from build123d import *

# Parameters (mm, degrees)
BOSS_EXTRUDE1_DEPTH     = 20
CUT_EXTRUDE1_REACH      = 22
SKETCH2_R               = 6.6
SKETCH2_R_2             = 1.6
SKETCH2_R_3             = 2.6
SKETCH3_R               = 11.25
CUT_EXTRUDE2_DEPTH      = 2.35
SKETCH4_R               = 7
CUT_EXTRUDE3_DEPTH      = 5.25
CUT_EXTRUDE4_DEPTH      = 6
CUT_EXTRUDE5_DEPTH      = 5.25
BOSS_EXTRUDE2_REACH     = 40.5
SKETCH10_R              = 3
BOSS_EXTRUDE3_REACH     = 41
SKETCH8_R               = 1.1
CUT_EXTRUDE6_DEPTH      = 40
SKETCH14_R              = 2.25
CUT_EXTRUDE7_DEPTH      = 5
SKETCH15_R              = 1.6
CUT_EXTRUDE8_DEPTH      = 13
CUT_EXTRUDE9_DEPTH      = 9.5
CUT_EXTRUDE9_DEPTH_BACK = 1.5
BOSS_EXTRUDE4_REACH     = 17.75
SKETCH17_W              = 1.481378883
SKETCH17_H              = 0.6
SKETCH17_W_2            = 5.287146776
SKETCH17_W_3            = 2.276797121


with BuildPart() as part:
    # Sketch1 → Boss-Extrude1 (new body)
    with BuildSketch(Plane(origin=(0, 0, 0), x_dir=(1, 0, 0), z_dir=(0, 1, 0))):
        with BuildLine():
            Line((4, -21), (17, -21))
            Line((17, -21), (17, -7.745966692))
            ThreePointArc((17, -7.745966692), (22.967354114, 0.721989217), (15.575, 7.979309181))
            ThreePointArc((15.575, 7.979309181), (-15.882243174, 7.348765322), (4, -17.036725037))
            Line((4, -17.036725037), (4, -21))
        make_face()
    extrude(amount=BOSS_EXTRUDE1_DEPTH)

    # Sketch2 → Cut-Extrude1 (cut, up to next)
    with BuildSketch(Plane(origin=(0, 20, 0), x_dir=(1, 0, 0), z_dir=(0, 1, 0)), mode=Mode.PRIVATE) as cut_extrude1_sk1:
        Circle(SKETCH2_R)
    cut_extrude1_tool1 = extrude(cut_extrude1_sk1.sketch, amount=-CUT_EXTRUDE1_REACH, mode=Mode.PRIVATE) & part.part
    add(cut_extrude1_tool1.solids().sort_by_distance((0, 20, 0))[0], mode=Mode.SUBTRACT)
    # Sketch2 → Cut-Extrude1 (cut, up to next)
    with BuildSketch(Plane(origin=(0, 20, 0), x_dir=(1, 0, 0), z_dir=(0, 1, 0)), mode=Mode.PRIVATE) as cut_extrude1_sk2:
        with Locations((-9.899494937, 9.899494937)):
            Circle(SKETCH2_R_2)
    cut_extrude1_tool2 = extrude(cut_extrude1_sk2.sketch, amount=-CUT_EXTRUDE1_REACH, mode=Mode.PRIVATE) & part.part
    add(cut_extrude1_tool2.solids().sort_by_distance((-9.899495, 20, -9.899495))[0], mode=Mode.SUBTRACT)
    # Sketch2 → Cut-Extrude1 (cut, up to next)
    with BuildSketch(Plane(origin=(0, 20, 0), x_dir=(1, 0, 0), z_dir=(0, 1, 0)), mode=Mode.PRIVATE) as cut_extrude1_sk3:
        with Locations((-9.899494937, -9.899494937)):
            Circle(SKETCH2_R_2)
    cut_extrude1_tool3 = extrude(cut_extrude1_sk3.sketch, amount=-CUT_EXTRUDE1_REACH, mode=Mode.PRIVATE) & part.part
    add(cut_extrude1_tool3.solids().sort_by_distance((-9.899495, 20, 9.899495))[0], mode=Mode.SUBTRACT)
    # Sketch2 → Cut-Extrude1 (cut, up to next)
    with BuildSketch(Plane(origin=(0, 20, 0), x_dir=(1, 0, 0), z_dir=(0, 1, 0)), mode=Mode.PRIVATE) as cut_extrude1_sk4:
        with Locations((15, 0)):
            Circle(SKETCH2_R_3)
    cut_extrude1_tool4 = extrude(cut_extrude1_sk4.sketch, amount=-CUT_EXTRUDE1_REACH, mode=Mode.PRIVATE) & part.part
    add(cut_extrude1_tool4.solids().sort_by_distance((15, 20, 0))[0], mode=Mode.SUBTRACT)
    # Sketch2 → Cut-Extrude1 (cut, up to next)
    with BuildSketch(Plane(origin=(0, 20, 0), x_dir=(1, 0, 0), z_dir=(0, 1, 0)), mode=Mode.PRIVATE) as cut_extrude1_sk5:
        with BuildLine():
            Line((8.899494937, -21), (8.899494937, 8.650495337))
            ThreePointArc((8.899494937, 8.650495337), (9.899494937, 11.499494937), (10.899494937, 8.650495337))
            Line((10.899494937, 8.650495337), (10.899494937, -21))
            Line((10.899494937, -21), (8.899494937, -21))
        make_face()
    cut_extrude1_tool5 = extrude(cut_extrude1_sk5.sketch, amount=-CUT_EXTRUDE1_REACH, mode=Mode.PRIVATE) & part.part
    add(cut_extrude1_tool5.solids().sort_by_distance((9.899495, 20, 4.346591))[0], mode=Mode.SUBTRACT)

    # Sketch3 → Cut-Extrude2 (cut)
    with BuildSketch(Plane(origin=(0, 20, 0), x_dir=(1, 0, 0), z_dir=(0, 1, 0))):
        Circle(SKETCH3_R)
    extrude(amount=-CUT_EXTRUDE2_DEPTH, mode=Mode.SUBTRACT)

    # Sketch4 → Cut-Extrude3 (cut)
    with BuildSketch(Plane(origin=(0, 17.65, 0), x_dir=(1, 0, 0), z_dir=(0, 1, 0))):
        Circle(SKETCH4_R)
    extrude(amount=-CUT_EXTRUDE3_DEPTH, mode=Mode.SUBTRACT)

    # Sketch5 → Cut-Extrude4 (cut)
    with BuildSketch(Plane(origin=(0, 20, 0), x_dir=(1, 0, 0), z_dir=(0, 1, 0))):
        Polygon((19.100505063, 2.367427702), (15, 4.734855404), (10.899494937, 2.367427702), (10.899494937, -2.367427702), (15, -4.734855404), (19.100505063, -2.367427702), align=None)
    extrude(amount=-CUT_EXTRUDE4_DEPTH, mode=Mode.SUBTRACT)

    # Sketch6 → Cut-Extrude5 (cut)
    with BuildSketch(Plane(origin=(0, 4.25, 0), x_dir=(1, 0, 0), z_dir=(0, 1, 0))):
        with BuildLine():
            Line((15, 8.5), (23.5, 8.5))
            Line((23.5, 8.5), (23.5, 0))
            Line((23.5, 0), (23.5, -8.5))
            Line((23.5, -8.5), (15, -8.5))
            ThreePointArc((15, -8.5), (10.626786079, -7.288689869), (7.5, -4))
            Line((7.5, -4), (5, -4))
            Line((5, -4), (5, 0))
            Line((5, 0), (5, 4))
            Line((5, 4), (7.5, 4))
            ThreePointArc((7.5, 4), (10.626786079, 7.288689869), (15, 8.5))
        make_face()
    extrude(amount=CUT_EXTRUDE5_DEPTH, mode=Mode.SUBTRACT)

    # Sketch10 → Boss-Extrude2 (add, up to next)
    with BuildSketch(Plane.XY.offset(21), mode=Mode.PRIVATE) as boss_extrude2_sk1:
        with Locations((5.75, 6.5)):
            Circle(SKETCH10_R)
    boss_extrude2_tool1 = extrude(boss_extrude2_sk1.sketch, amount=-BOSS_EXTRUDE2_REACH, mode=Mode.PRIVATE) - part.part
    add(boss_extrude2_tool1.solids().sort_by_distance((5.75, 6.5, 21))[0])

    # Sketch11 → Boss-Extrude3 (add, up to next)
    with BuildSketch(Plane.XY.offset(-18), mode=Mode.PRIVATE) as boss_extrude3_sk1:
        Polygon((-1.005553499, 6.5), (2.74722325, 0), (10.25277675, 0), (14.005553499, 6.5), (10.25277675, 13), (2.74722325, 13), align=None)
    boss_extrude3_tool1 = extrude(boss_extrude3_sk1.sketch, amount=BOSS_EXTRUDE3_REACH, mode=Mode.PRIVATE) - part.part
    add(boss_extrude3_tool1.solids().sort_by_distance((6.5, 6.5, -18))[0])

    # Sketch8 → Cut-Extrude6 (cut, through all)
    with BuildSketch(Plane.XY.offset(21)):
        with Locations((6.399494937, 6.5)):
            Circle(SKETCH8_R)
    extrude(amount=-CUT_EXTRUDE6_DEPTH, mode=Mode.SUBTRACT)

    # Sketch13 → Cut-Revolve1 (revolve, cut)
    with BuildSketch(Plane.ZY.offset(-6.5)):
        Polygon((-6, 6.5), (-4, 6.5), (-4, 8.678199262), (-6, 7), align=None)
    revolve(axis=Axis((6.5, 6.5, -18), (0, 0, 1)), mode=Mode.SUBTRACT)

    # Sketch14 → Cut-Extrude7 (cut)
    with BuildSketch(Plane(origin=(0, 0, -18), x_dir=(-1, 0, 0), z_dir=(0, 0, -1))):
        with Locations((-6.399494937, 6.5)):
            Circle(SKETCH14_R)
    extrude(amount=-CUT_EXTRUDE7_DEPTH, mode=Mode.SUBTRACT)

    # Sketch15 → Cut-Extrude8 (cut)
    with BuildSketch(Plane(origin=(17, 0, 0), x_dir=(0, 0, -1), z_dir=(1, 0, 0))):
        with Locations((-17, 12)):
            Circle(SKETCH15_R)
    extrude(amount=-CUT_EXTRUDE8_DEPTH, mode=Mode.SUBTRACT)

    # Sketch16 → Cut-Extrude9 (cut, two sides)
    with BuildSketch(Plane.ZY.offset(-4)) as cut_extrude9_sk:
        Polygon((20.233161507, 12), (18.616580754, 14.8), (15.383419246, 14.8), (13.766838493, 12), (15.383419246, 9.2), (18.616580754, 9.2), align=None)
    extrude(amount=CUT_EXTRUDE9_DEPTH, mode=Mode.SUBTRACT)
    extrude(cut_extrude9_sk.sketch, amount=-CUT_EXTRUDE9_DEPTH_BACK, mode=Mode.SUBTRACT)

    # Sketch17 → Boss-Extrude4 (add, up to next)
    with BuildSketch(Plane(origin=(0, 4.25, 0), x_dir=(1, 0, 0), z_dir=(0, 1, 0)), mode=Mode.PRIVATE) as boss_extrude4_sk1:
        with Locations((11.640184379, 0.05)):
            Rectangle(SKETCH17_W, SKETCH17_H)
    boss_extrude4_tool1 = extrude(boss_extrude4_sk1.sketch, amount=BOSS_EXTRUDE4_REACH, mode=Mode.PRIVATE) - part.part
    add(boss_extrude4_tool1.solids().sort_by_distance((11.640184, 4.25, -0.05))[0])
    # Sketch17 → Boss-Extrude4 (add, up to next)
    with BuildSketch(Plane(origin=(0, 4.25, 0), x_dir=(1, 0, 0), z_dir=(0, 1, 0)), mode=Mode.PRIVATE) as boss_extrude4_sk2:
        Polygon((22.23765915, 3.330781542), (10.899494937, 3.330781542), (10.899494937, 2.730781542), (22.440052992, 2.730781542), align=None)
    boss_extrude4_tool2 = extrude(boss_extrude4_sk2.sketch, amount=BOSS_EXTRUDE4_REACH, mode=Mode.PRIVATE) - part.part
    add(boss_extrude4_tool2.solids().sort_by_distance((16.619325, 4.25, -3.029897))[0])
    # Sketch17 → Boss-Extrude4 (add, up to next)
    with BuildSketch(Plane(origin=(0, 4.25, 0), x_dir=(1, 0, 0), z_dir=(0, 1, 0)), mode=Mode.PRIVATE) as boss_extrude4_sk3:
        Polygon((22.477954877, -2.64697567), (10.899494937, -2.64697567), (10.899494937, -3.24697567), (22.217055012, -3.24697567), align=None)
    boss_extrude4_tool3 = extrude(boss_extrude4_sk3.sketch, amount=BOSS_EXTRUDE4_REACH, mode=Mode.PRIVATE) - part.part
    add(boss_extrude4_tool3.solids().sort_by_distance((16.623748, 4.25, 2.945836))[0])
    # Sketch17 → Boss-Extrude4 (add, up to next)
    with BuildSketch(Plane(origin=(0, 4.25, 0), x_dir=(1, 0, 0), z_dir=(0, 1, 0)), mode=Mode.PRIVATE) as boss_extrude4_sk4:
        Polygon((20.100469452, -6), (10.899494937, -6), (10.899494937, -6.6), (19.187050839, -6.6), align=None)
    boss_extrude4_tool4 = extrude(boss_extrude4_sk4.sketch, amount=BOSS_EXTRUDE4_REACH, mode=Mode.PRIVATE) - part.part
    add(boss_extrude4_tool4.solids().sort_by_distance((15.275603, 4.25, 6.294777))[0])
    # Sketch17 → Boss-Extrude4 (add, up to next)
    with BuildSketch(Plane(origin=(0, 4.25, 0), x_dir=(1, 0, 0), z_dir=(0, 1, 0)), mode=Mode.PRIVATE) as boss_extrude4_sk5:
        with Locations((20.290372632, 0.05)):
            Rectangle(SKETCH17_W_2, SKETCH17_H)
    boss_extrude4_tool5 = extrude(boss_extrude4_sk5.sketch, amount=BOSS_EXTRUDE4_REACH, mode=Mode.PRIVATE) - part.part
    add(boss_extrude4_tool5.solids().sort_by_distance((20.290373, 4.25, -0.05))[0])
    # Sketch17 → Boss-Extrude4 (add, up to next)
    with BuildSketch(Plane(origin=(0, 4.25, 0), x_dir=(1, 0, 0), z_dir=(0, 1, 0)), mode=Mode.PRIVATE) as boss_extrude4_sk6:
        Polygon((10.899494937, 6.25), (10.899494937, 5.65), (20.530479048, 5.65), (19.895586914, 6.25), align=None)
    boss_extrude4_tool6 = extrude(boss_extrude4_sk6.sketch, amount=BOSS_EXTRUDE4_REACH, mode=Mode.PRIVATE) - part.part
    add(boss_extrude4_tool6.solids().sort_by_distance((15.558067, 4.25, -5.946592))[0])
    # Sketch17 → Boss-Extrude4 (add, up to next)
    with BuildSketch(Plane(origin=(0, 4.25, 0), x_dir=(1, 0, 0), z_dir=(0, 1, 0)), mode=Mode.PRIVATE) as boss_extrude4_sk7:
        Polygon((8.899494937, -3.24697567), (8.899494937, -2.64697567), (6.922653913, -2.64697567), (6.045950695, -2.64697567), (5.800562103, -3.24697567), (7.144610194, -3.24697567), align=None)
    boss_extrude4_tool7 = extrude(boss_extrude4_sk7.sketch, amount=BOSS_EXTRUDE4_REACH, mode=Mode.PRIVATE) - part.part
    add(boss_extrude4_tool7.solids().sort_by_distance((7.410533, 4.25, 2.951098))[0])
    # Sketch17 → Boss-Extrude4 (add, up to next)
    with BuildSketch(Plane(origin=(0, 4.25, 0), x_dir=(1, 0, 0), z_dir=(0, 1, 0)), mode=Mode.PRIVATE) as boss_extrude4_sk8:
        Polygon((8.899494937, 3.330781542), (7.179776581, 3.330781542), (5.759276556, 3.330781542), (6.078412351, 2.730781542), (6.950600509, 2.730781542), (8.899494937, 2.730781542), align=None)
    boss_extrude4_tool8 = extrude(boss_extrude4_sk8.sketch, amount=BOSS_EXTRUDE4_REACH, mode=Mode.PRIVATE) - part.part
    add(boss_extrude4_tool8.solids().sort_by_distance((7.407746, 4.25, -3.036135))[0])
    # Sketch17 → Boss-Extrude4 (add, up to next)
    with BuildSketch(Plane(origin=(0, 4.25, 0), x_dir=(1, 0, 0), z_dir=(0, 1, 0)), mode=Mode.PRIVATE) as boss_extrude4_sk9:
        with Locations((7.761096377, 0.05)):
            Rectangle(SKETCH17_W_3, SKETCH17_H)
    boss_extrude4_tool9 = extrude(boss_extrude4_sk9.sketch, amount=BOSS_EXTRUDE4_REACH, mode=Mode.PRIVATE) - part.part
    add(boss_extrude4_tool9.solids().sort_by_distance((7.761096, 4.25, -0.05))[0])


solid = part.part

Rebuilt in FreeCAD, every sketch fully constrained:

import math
import FreeCAD as App
import Part
import Sketcher
Q = App.Units.Quantity

doc = App.newDocument("Part")
params = doc.addObject("Spreadsheet::Sheet", "Params")
for row, (alias, value) in enumerate([
    ("sketch1_radius", "8 mm"),
    ("sketch1_radius2", "17.5 mm"),
    ("sketch1_width", "13 mm"),
    ("pad1_length", "20 mm"),
    ("sketch2_diameter", "13.2 mm"),
    ("sketch3_diameter", "3.2 mm"),
    ("sketch4_diameter", "3.2 mm"),
    ("sketch5_diameter", "5.2 mm"),
    ("sketch6_radius", "1.6 mm"),
    ("sketch6_width", "2 mm"),
    ("sketch7_diameter", "22.5 mm"),
    ("pocket6_length", "2.35 mm"),
    ("sketch8_diameter", "14 mm"),
    ("pocket7_length", "5.25 mm"),
    ("pocket8_length", "6 mm"),
    ("sketch10_radius", "8.5 mm"),
    ("sketch10_height", "8 mm"),
    ("sketch10_width", "8.5 mm"),
    ("sketch10_width2", "2.5 mm"),
    ("pocket9_length", "5.25 mm"),
    ("sketch11_diameter", "6 mm"),
    ("pad2_length", "3.963275 mm"),
    ("sketch13_diameter", "2.2 mm"),
    ("sketch14_height", "2 mm"),
    ("sketch14_width", "0.5 mm"),
    ("groove_angle", "360 deg"),
    ("sketch15_diameter", "4.5 mm"),
    ("pocket11_length", "5 mm"),
    ("sketch16_diameter", "3.2 mm"),
    ("pocket12_length", "13 mm"),
    ("pocket13_length", "9.5 mm"),
    ("pocket13_length2", "1.5 mm"),
    ("sketch18_height", "0.6 mm"),
    ("sketch19_height", "0.6 mm"),
    ("sketch20_height", "0.6 mm"),
    ("sketch21_height", "0.6 mm"),
    ("sketch22_height", "0.6 mm"),
    ("sketch23_height", "0.6 mm"),
    ("sketch24_height", "0.6 mm"),
    ("sketch25_height", "0.6 mm"),
    ("sketch26_height", "0.6 mm"),
], start=1):
    params.set(f"A{row}", alias)
    params.set(f"B{row}", "=" + value)
    params.setAlias(f"B{row}", alias)

body = doc.addObject("PartDesign::Body", "Body")

# Sketch on XZ plane
sketch1 = body.newObject("Sketcher::SketchObject", "Sketch")
sketch1.AttachmentSupport = (doc.getObject("XZ_Plane"), [""])
sketch1.MapMode = "FlatFace"
sketch1.addGeometry([
    Part.LineSegment(App.Vector(4, 21, 0), App.Vector(17, 21, 0)),  # 0
    Part.LineSegment(App.Vector(17, 21, 0), App.Vector(17, 7.745967, 0)),  # 1
    Part.ArcOfCircle(Part.Circle(App.Vector(15, 0, 0), App.Vector(0, 0, 1), 8), math.radians(-85.878312), math.radians(75.522488)),  # 2
    Part.ArcOfCircle(Part.Circle(App.Vector(0, 0, 0), App.Vector(0, 0, 1), 17.5), math.radians(76.78702), math.radians(332.873247)),  # 3
    Part.LineSegment(App.Vector(4, 17.036725, 0), App.Vector(4, 21, 0)),  # 4
], False)
sketch1.addConstraint([
    Sketcher.Constraint("Coincident", 0, 2, 1, 1),
    Sketcher.Constraint("Coincident", 1, 2, 2, 2),
    Sketcher.Constraint("Coincident", 2, 1, 3, 2),
    Sketcher.Constraint("Coincident", 3, 1, 4, 1),
    Sketcher.Constraint("Coincident", 4, 2, 0, 1),
    Sketcher.Constraint("Horizontal", 0),
    Sketcher.Constraint("Vertical", 1),
    Sketcher.Constraint("Vertical", 4),
    Sketcher.Constraint("Coincident", 3, 3, -1, 1),
    Sketcher.Constraint("PointOnObject", 2, 3, -1),
    Sketcher.Constraint("Radius", 2, Q("8 mm")),
    Sketcher.Constraint("Radius", 3, Q("17.5 mm")),
    Sketcher.Constraint("DistanceX", 0, 1, 0, 2, Q("13 mm")),
    Sketcher.Constraint("DistanceX", -1, 1, 2, 3, Q("15 mm")),
    Sketcher.Constraint("DistanceX", -1, 1, 0, 2, Q("17 mm")),
    Sketcher.Constraint("DistanceY", -1, 1, 0, 2, Q("21 mm")),
])
sketch1.setExpression("Constraints[10]", "Params.sketch1_radius")
sketch1.setExpression("Constraints[11]", "Params.sketch1_radius2")
sketch1.setExpression("Constraints[12]", "Params.sketch1_width")
pad1 = body.newObject("PartDesign::Pad", "Pad")
pad1.Profile = sketch1
pad1.setExpression("Length", "Params.pad1_length")
pad1.Reversed = True

# Sketch on XZ plane
sketch2 = body.newObject("Sketcher::SketchObject", "Sketch001")
sketch2.AttachmentSupport = (doc.getObject("XZ_Plane"), [""])
sketch2.MapMode = "FlatFace"
sketch2.AttachmentOffset = App.Placement(App.Vector(0, 0, -20), App.Rotation())
sketch2.addGeometry(Part.Circle(App.Vector(0, 0, 0), App.Vector(0, 0, 1), 6.6), False)
sketch2.addConstraint([
    Sketcher.Constraint("Coincident", 0, 3, -1, 1),
    Sketcher.Constraint("Diameter", 0, Q("13.2 mm")),
])
sketch2.setExpression("Constraints[1]", "Params.sketch2_diameter")
pocket1 = body.newObject("PartDesign::Pocket", "Pocket")
pocket1.Profile = sketch2
pocket1.Type = "UpToFirst"
pocket1.Reversed = True

# Sketch on XZ plane
sketch3 = body.newObject("Sketcher::SketchObject", "Sketch002")
sketch3.AttachmentSupport = (doc.getObject("XZ_Plane"), [""])
sketch3.MapMode = "FlatFace"
sketch3.AttachmentOffset = App.Placement(App.Vector(0, 0, -20), App.Rotation())
sketch3.addGeometry(Part.Circle(App.Vector(-9.899495, -9.899495, 0), App.Vector(0, 0, 1), 1.6), False)
sketch3.addConstraint([
    Sketcher.Constraint("Diameter", 0, Q("3.2 mm")),
    Sketcher.Constraint("DistanceX", 0, 3, -1, 1, Q("9.899495 mm")),
    Sketcher.Constraint("DistanceY", 0, 3, -1, 1, Q("9.899495 mm")),
])
sketch3.setExpression("Constraints[0]", "Params.sketch3_diameter")
pocket2 = body.newObject("PartDesign::Pocket", "Pocket001")
pocket2.Profile = sketch3
pocket2.Type = "UpToFirst"
pocket2.Reversed = True

# Sketch on XZ plane
sketch4 = body.newObject("Sketcher::SketchObject", "Sketch003")
sketch4.AttachmentSupport = (doc.getObject("XZ_Plane"), [""])
sketch4.MapMode = "FlatFace"
sketch4.AttachmentOffset = App.Placement(App.Vector(0, 0, -20), App.Rotation())
sketch4.addGeometry(Part.Circle(App.Vector(-9.899495, 9.899495, 0), App.Vector(0, 0, 1), 1.6), False)
sketch4.addConstraint([
    Sketcher.Constraint("Diameter", 0, Q("3.2 mm")),
    Sketcher.Constraint("DistanceX", 0, 3, -1, 1, Q("9.899495 mm")),
    Sketcher.Constraint("DistanceY", -1, 1, 0, 3, Q("9.899495 mm")),
])
sketch4.setExpression("Constraints[0]", "Params.sketch4_diameter")
pocket3 = body.newObject("PartDesign::Pocket", "Pocket002")
pocket3.Profile = sketch4
pocket3.Type = "UpToFirst"
pocket3.Reversed = True

# Sketch on XZ plane
sketch5 = body.newObject("Sketcher::SketchObject", "Sketch004")
sketch5.AttachmentSupport = (doc.getObject("XZ_Plane"), [""])
sketch5.MapMode = "FlatFace"
sketch5.AttachmentOffset = App.Placement(App.Vector(0, 0, -20), App.Rotation())
sketch5.addGeometry(Part.Circle(App.Vector(15, 0, 0), App.Vector(0, 0, 1), 2.6), False)
sketch5.addConstraint([
    Sketcher.Constraint("PointOnObject", 0, 3, -1),
    Sketcher.Constraint("Diameter", 0, Q("5.2 mm")),
    Sketcher.Constraint("DistanceX", -1, 1, 0, 3, Q("15 mm")),
])
sketch5.setExpression("Constraints[1]", "Params.sketch5_diameter")
pocket4 = body.newObject("PartDesign::Pocket", "Pocket003")
pocket4.Profile = sketch5
pocket4.Type = "UpToFirst"
pocket4.Reversed = True

# Sketch on XZ plane
sketch6 = body.newObject("Sketcher::SketchObject", "Sketch005")
sketch6.AttachmentSupport = (doc.getObject("XZ_Plane"), [""])
sketch6.MapMode = "FlatFace"
sketch6.AttachmentOffset = App.Placement(App.Vector(0, 0, -20), App.Rotation())
sketch6.addGeometry([
    Part.LineSegment(App.Vector(8.899495, -8.650495, 0), App.Vector(8.899495, 21, 0)),
    Part.LineSegment(App.Vector(8.899495, 21, 0), App.Vector(10.899495, 21, 0)),
    Part.LineSegment(App.Vector(10.899495, 21, 0), App.Vector(10.899495, -8.650495, 0)),
    Part.ArcOfCircle(Part.Circle(App.Vector(9.899495, -9.899495, 0), App.Vector(0, 0, 1), 1.6), math.radians(128.682187), math.radians(411.317813)),
], False)
sketch6.addConstraint([
    Sketcher.Constraint("Coincident", 0, 2, 1, 1),
    Sketcher.Constraint("Coincident", 1, 2, 2, 1),
    Sketcher.Constraint("Coincident", 2, 2, 3, 2),
    Sketcher.Constraint("Coincident", 3, 1, 0, 1),
    Sketcher.Constraint("Vertical", 0),
    Sketcher.Constraint("Horizontal", 1),
    Sketcher.Constraint("Vertical", 2),
    Sketcher.Constraint("Horizontal", 2, 2, 3, 1),
    Sketcher.Constraint("Radius", 3, Q("1.6 mm")),
    Sketcher.Constraint("DistanceX", 1, 1, 1, 2, Q("2 mm")),
    Sketcher.Constraint("DistanceY", -1, 1, 0, 2, Q("21 mm")),
    Sketcher.Constraint("DistanceY", 0, 1, 0, 2, Q("29.650495 mm")),
    Sketcher.Constraint("DistanceX", -1, 1, 3, 3, Q("9.899495 mm")),
])
sketch6.setExpression("Constraints[8]", "Params.sketch6_radius")
sketch6.setExpression("Constraints[9]", "Params.sketch6_width")
pocket5 = body.newObject("PartDesign::Pocket", "Pocket004")
pocket5.Profile = sketch6
pocket5.Type = "UpToFirst"
pocket5.Reversed = True

# Sketch on XZ plane
sketch7 = body.newObject("Sketcher::SketchObject", "Sketch006")
sketch7.AttachmentSupport = (doc.getObject("XZ_Plane"), [""])
sketch7.MapMode = "FlatFace"
sketch7.AttachmentOffset = App.Placement(App.Vector(0, 0, -20), App.Rotation())
sketch7.addGeometry(Part.Circle(App.Vector(0, 0, 0), App.Vector(0, 0, 1), 11.25), False)
sketch7.addConstraint([
    Sketcher.Constraint("Coincident", 0, 3, -1, 1),
    Sketcher.Constraint("Diameter", 0, Q("22.5 mm")),
])
sketch7.setExpression("Constraints[1]", "Params.sketch7_diameter")
pocket6 = body.newObject("PartDesign::Pocket", "Pocket005")
pocket6.Profile = sketch7
pocket6.setExpression("Length", "Params.pocket6_length")
pocket6.Reversed = True

# Sketch on XZ plane
sketch8 = body.newObject("Sketcher::SketchObject", "Sketch007")
sketch8.AttachmentSupport = (doc.getObject("XZ_Plane"), [""])
sketch8.MapMode = "FlatFace"
sketch8.AttachmentOffset = App.Placement(App.Vector(0, 0, -17.65), App.Rotation())
sketch8.addGeometry(Part.Circle(App.Vector(0, 0, 0), App.Vector(0, 0, 1), 7), False)
sketch8.addConstraint([
    Sketcher.Constraint("Coincident", 0, 3, -1, 1),
    Sketcher.Constraint("Diameter", 0, Q("14 mm")),
])
sketch8.setExpression("Constraints[1]", "Params.sketch8_diameter")
pocket7 = body.newObject("PartDesign::Pocket", "Pocket006")
pocket7.Profile = sketch8
pocket7.setExpression("Length", "Params.pocket7_length")
pocket7.Reversed = True

# Sketch on XZ plane
sketch9 = body.newObject("Sketcher::SketchObject", "Sketch008")
sketch9.AttachmentSupport = (doc.getObject("XZ_Plane"), [""])
sketch9.MapMode = "FlatFace"
sketch9.AttachmentOffset = App.Placement(App.Vector(0, 0, -20), App.Rotation())
sketch9.addGeometry([
    Part.LineSegment(App.Vector(19.100505, -2.367428, 0), App.Vector(15, -4.734855, 0)),  # 0
    Part.LineSegment(App.Vector(15, -4.734855, 0), App.Vector(10.899495, -2.367428, 0)),  # 1
    Part.LineSegment(App.Vector(10.899495, -2.367428, 0), App.Vector(10.899495, 2.367428, 0)),  # 2
    Part.LineSegment(App.Vector(10.899495, 2.367428, 0), App.Vector(15, 4.734855, 0)),  # 3
    Part.LineSegment(App.Vector(15, 4.734855, 0), App.Vector(19.100505, 2.367428, 0)),  # 4
    Part.LineSegment(App.Vector(19.100505, 2.367428, 0), App.Vector(19.100505, -2.367428, 0)),  # 5
], False)
sketch9.addConstraint([
    Sketcher.Constraint("Coincident", 0, 2, 1, 1),
    Sketcher.Constraint("Coincident", 1, 2, 2, 1),
    Sketcher.Constraint("Coincident", 2, 2, 3, 1),
    Sketcher.Constraint("Coincident", 3, 2, 4, 1),
    Sketcher.Constraint("Coincident", 4, 2, 5, 1),
    Sketcher.Constraint("Coincident", 5, 2, 0, 1),
    Sketcher.Constraint("Vertical", 2),
    Sketcher.Constraint("Vertical", 5),
    Sketcher.Constraint("Symmetric", 0, 2, 3, 2, -1),
    Sketcher.Constraint("Parallel", 0, 3),
    Sketcher.Constraint("Parallel", 1, 4),
    Sketcher.Constraint("Horizontal", 2, 2, 4, 2),
    Sketcher.Constraint("Horizontal", 1, 2, 5, 2),
    Sketcher.Constraint("Angle", 0, Q("-150 deg")),
    Sketcher.Constraint("DistanceX", -1, 1, 0, 2, Q("15 mm")),
    Sketcher.Constraint("DistanceY", 2, 1, 2, 2, Q("4.734855 mm")),
    Sketcher.Constraint("DistanceY", 0, 2, 3, 2, Q("9.469711 mm")),
])
pocket8 = body.newObject("PartDesign::Pocket", "Pocket007")
pocket8.Profile = sketch9
pocket8.setExpression("Length", "Params.pocket8_length")
pocket8.Reversed = True

# Sketch on XZ plane
sketch10 = body.newObject("Sketcher::SketchObject", "Sketch009")
sketch10.AttachmentSupport = (doc.getObject("XZ_Plane"), [""])
sketch10.MapMode = "FlatFace"
sketch10.AttachmentOffset = App.Placement(App.Vector(0, 0, -4.25), App.Rotation())
sketch10.addGeometry([
    Part.LineSegment(App.Vector(23.5, -8.5, 0), App.Vector(15, -8.5, 0)),  # 0
    Part.ArcOfCircle(Part.Circle(App.Vector(15, 0, 0), App.Vector(0, 0, 1), 8.5), math.radians(-151.927513), math.radians(-90)),  # 1
    Part.LineSegment(App.Vector(7.5, -4, 0), App.Vector(5, -4, 0)),  # 2
    Part.LineSegment(App.Vector(5, -4, 0), App.Vector(5, 4, 0)),  # 3
    Part.LineSegment(App.Vector(5, 4, 0), App.Vector(7.5, 4, 0)),  # 4
    Part.ArcOfCircle(Part.Circle(App.Vector(15, 0, 0), App.Vector(0, 0, 1), 8.5), math.radians(90), math.radians(151.927513)),  # 5
    Part.LineSegment(App.Vector(15, 8.5, 0), App.Vector(23.5, 8.5, 0)),  # 6
    Part.LineSegment(App.Vector(23.5, 8.5, 0), App.Vector(23.5, -8.5, 0)),  # 7
], False)
sketch10.addConstraint([
    Sketcher.Constraint("Tangent", 0, 2, 1, 2),
    Sketcher.Constraint("Coincident", 1, 1, 2, 1),
    Sketcher.Constraint("Coincident", 2, 2, 3, 1),
    Sketcher.Constraint("Coincident", 3, 2, 4, 1),
    Sketcher.Constraint("Coincident", 4, 2, 5, 2),
    Sketcher.Constraint("Tangent", 5, 1, 6, 1),
    Sketcher.Constraint("Coincident", 6, 2, 7, 1),
    Sketcher.Constraint("Coincident", 7, 2, 0, 1),
    Sketcher.Constraint("Horizontal", 0),
    Sketcher.Constraint("Horizontal", 2),
    Sketcher.Constraint("Vertical", 3),
    Sketcher.Constraint("Horizontal", 4),
    Sketcher.Constraint("Horizontal", 6),
    Sketcher.Constraint("Vertical", 7),
    Sketcher.Constraint("Coincident", 5, 3, 1, 3),
    Sketcher.Constraint("Equal", 1, 5),
    Sketcher.Constraint("Symmetric", 1, 1, 4, 2, -1),
    Sketcher.Constraint("Radius", 1, Q("8.5 mm")),
    Sketcher.Constraint("DistanceY", 3, 1, 3, 2, Q("8 mm")),
    Sketcher.Constraint("DistanceX", 0, 2, 0, 1, Q("8.5 mm")),
    Sketcher.Constraint("DistanceX", 2, 2, 2, 1, Q("2.5 mm")),
    Sketcher.Constraint("DistanceX", -1, 1, 1, 3, Q("15 mm")),
])
sketch10.setExpression("Constraints[17]", "Params.sketch10_radius")
sketch10.setExpression("Constraints[18]", "Params.sketch10_height")
sketch10.setExpression("Constraints[19]", "Params.sketch10_width")
sketch10.setExpression("Constraints[20]", "Params.sketch10_width2")
pocket9 = body.newObject("PartDesign::Pocket", "Pocket008")
pocket9.Profile = sketch10
pocket9.setExpression("Length", "Params.pocket9_length")

# Sketch on XY plane
sketch11 = body.newObject("Sketcher::SketchObject", "Sketch010")
sketch11.AttachmentSupport = (doc.getObject("XY_Plane"), [""])
sketch11.MapMode = "FlatFace"
sketch11.AttachmentOffset = App.Placement(App.Vector(0, 0, 21), App.Rotation())
sketch11.addGeometry(Part.Circle(App.Vector(5.75, 6.5, 0), App.Vector(0, 0, 1), 3), False)
sketch11.addConstraint([
    Sketcher.Constraint("Diameter", 0, Q("6 mm")),
    Sketcher.Constraint("DistanceY", -1, 1, 0, 3, Q("6.5 mm")),
    Sketcher.Constraint("DistanceX", -1, 1, 0, 3, Q("5.75 mm")),
])
sketch11.setExpression("Constraints[0]", "Params.sketch11_diameter")
pad2 = body.newObject("PartDesign::Pad", "Pad001")
pad2.Profile = sketch11
pad2.setExpression("Length", "Params.pad2_length")
pad2.Reversed = True

# Sketch on XY plane
sketch12 = body.newObject("Sketcher::SketchObject", "Sketch011")
sketch12.AttachmentSupport = (doc.getObject("XY_Plane"), [""])
sketch12.MapMode = "FlatFace"
sketch12.AttachmentOffset = App.Placement(App.Vector(0, 0, -18), App.Rotation())
sketch12.addGeometry([
    Part.LineSegment(App.Vector(-1.005553, 6.5, 0), App.Vector(2.747223, 0, 0)),  # 0
    Part.LineSegment(App.Vector(2.747223, 0, 0), App.Vector(10.252777, 0, 0)),  # 1
    Part.LineSegment(App.Vector(10.252777, 0, 0), App.Vector(14.005553, 6.5, 0)),  # 2
    Part.LineSegment(App.Vector(14.005553, 6.5, 0), App.Vector(10.252777, 13, 0)),  # 3
    Part.LineSegment(App.Vector(10.252777, 13, 0), App.Vector(2.747223, 13, 0)),  # 4
    Part.LineSegment(App.Vector(2.747223, 13, 0), App.Vector(-1.005553, 6.5, 0)),  # 5
], False)
sketch12.addConstraint([
    Sketcher.Constraint("Coincident", 0, 2, 1, 1),
    Sketcher.Constraint("Coincident", 1, 2, 2, 1),
    Sketcher.Constraint("Coincident", 2, 2, 3, 1),
    Sketcher.Constraint("Coincident", 3, 2, 4, 1),
    Sketcher.Constraint("Coincident", 4, 2, 5, 1),
    Sketcher.Constraint("Coincident", 5, 2, 0, 1),
    Sketcher.Constraint("Horizontal", 1),
    Sketcher.Constraint("Horizontal", 4),
    Sketcher.Constraint("PointOnObject", 0, 2, -1),
    Sketcher.Constraint("Parallel", 0, 3),
    Sketcher.Constraint("Parallel", 2, 5),
    Sketcher.Constraint("Horizontal", 2, 2, 5, 2),
    Sketcher.Constraint("Vertical", 1, 2, 3, 2),
    Sketcher.Constraint("Vertical", 0, 2, 4, 2),
    Sketcher.Constraint("Angle", 0, Q("-60 deg")),
    Sketcher.Constraint("DistanceY", -1, 1, 3, 2, Q("13 mm")),
    Sketcher.Constraint("DistanceX", 1, 1, 1, 2, Q("7.505554 mm")),
    Sketcher.Constraint("DistanceX", -1, 1, 0, 2, Q("2.747223 mm")),
])
pad3 = body.newObject("PartDesign::Pad", "Pad002")
pad3.Profile = sketch12
pad3.Type = "UpToFirst"

# Sketch on XY plane
sketch13 = body.newObject("Sketcher::SketchObject", "Sketch012")
sketch13.AttachmentSupport = (doc.getObject("XY_Plane"), [""])
sketch13.MapMode = "FlatFace"
sketch13.AttachmentOffset = App.Placement(App.Vector(0, 0, 21), App.Rotation())
sketch13.addGeometry(Part.Circle(App.Vector(6.399495, 6.5, 0), App.Vector(0, 0, 1), 1.1), False)
sketch13.addConstraint([
    Sketcher.Constraint("Diameter", 0, Q("2.2 mm")),
    Sketcher.Constraint("DistanceY", -1, 1, 0, 3, Q("6.5 mm")),
    Sketcher.Constraint("DistanceX", -1, 1, 0, 3, Q("6.399495 mm")),
])
sketch13.setExpression("Constraints[0]", "Params.sketch13_diameter")
pocket10 = body.newObject("PartDesign::Pocket", "Pocket009")
pocket10.Profile = sketch13
pocket10.Type = "ThroughAll"

# Sketch on YZ plane
sketch14 = body.newObject("Sketcher::SketchObject", "Sketch013")
sketch14.AttachmentSupport = (doc.getObject("YZ_Plane"), [""])
sketch14.MapMode = "FlatFace"
sketch14.AttachmentOffset = App.Placement(App.Vector(0, 0, 6.5), App.Rotation())
sketch14.addGeometry([
    Part.LineSegment(App.Vector(6.5, -6, 0), App.Vector(6.5, -4, 0)),
    Part.LineSegment(App.Vector(6.5, -4, 0), App.Vector(8.678199, -4, 0)),
    Part.LineSegment(App.Vector(8.678199, -4, 0), App.Vector(7, -6, 0)),
    Part.LineSegment(App.Vector(7, -6, 0), App.Vector(6.5, -6, 0)),
], False)
sketch14.addGeometry(Part.LineSegment(App.Vector(6.5, -6, 0), App.Vector(6.5, -4, 0)), True)  # axis
sketch14.addConstraint([
    Sketcher.Constraint("Coincident", 0, 2, 1, 1),
    Sketcher.Constraint("Coincident", 1, 2, 2, 1),
    Sketcher.Constraint("Coincident", 2, 2, 3, 1),
    Sketcher.Constraint("Coincident", 3, 2, 0, 1),
    Sketcher.Constraint("Vertical", 0),
    Sketcher.Constraint("Horizontal", 1),
    Sketcher.Constraint("Horizontal", 3),
    Sketcher.Constraint("Vertical", 4),
    Sketcher.Constraint("Coincident", 4, 1, 3, 2),
    Sketcher.Constraint("Horizontal", 1, 2, 4, 2),
    Sketcher.Constraint("DistanceY", 0, 1, 0, 2, Q("2 mm")),
    Sketcher.Constraint("Angle", 2, Q("-130 deg")),
    Sketcher.Constraint("DistanceX", 3, 2, 3, 1, Q("0.5 mm")),
    Sketcher.Constraint("DistanceY", 0, 2, -1, 1, Q("4 mm")),
    Sketcher.Constraint("DistanceX", -1, 1, 2, 2, Q("7 mm")),
])
sketch14.setExpression("Constraints[10]", "Params.sketch14_height")
sketch14.setExpression("Constraints[12]", "Params.sketch14_width")
groove = body.newObject("PartDesign::Groove", "Groove")
groove.Profile = sketch14
groove.ReferenceAxis = (sketch14, ["Axis0"])
groove.setExpression("Angle", "Params.groove_angle")

# Sketch on XY plane
sketch15 = body.newObject("Sketcher::SketchObject", "Sketch014")
sketch15.AttachmentSupport = (doc.getObject("XY_Plane"), [""])
sketch15.MapMode = "FlatFace"
sketch15.AttachmentOffset = App.Placement(App.Vector(0, 0, -18), App.Rotation())
sketch15.addGeometry(Part.Circle(App.Vector(6.399495, 6.5, 0), App.Vector(0, 0, 1), 2.25), False)
sketch15.addConstraint([
    Sketcher.Constraint("Diameter", 0, Q("4.5 mm")),
    Sketcher.Constraint("DistanceY", -1, 1, 0, 3, Q("6.5 mm")),
    Sketcher.Constraint("DistanceX", -1, 1, 0, 3, Q("6.399495 mm")),
])
sketch15.setExpression("Constraints[0]", "Params.sketch15_diameter")
pocket11 = body.newObject("PartDesign::Pocket", "Pocket010")
pocket11.Profile = sketch15
pocket11.setExpression("Length", "Params.pocket11_length")
pocket11.Reversed = True

# Sketch on YZ plane
sketch16 = body.newObject("Sketcher::SketchObject", "Sketch015")
sketch16.AttachmentSupport = (doc.getObject("YZ_Plane"), [""])
sketch16.MapMode = "FlatFace"
sketch16.AttachmentOffset = App.Placement(App.Vector(0, 0, 17), App.Rotation())
sketch16.addGeometry(Part.Circle(App.Vector(12, 17, 0), App.Vector(0, 0, 1), 1.6), False)
sketch16.addConstraint([
    Sketcher.Constraint("Diameter", 0, Q("3.2 mm")),
    Sketcher.Constraint("DistanceX", -1, 1, 0, 3, Q("12 mm")),
    Sketcher.Constraint("DistanceY", -1, 1, 0, 3, Q("17 mm")),
])
sketch16.setExpression("Constraints[0]", "Params.sketch16_diameter")
pocket12 = body.newObject("PartDesign::Pocket", "Pocket011")
pocket12.Profile = sketch16
pocket12.setExpression("Length", "Params.pocket12_length")

# Sketch on YZ plane
sketch17 = body.newObject("Sketcher::SketchObject", "Sketch016")
sketch17.AttachmentSupport = (doc.getObject("YZ_Plane"), [""])
sketch17.MapMode = "FlatFace"
sketch17.AttachmentOffset = App.Placement(App.Vector(0, 0, 4), App.Rotation())
sketch17.addGeometry([
    Part.LineSegment(App.Vector(12, 20.233162, 0), App.Vector(14.8, 18.616581, 0)),  # 0
    Part.LineSegment(App.Vector(14.8, 18.616581, 0), App.Vector(14.8, 15.383419, 0)),  # 1
    Part.LineSegment(App.Vector(14.8, 15.383419, 0), App.Vector(12, 13.766838, 0)),  # 2
    Part.LineSegment(App.Vector(12, 13.766838, 0), App.Vector(9.2, 15.383419, 0)),  # 3
    Part.LineSegment(App.Vector(9.2, 15.383419, 0), App.Vector(9.2, 18.616581, 0)),  # 4
    Part.LineSegment(App.Vector(9.2, 18.616581, 0), App.Vector(12, 20.233162, 0)),  # 5
], False)
sketch17.addConstraint([
    Sketcher.Constraint("Coincident", 0, 2, 1, 1),
    Sketcher.Constraint("Coincident", 1, 2, 2, 1),
    Sketcher.Constraint("Coincident", 2, 2, 3, 1),
    Sketcher.Constraint("Coincident", 3, 2, 4, 1),
    Sketcher.Constraint("Coincident", 4, 2, 5, 1),
    Sketcher.Constraint("Coincident", 5, 2, 0, 1),
    Sketcher.Constraint("Vertical", 1),
    Sketcher.Constraint("Vertical", 4),
    Sketcher.Constraint("Parallel", 0, 3),
    Sketcher.Constraint("Parallel", 2, 5),
    Sketcher.Constraint("Horizontal", 1, 2, 3, 2),
    Sketcher.Constraint("Horizontal", 0, 2, 4, 2),
    Sketcher.Constraint("Vertical", 2, 2, 5, 2),
    Sketcher.Constraint("Angle", 0, Q("-30 deg")),
    Sketcher.Constraint("DistanceX", -1, 1, 2, 2, Q("12 mm")),
    Sketcher.Constraint("DistanceX", -1, 1, 0, 2, Q("14.8 mm")),
    Sketcher.Constraint("DistanceY", 1, 2, 1, 1, Q("3.233162 mm")),
    Sketcher.Constraint("DistanceY", -1, 1, 0, 2, Q("18.616581 mm")),
])
pocket13 = body.newObject("PartDesign::Pocket", "Pocket012")
pocket13.Profile = sketch17
pocket13.Type = "TwoLengths"
pocket13.setExpression("Length", "Params.pocket13_length")
pocket13.setExpression("Length2", "Params.pocket13_length2")

# Sketch on XZ plane
sketch18 = body.newObject("Sketcher::SketchObject", "Sketch017")
sketch18.AttachmentSupport = (doc.getObject("XZ_Plane"), [""])
sketch18.MapMode = "FlatFace"
sketch18.AttachmentOffset = App.Placement(App.Vector(0, 0, -4.25), App.Rotation())
sketch18.addGeometry([
    Part.LineSegment(App.Vector(10.899495, -0.35, 0), App.Vector(10.899495, 0.25, 0)),
    Part.LineSegment(App.Vector(10.899495, 0.25, 0), App.Vector(12.380874, 0.25, 0)),
    Part.LineSegment(App.Vector(12.380874, 0.25, 0), App.Vector(12.380874, -0.35, 0)),
    Part.LineSegment(App.Vector(12.380874, -0.35, 0), App.Vector(10.899495, -0.35, 0)),
], False)
sketch18.addConstraint([
    Sketcher.Constraint("Coincident", 0, 2, 1, 1),
    Sketcher.Constraint("Coincident", 1, 2, 2, 1),
    Sketcher.Constraint("Coincident", 2, 2, 3, 1),
    Sketcher.Constraint("Coincident", 3, 2, 0, 1),
    Sketcher.Constraint("Vertical", 0),
    Sketcher.Constraint("Horizontal", 1),
    Sketcher.Constraint("Vertical", 2),
    Sketcher.Constraint("Horizontal", 3),
    Sketcher.Constraint("DistanceY", 0, 1, 0, 2, Q("0.6 mm")),
    Sketcher.Constraint("DistanceY", -1, 1, 0, 2, Q("0.25 mm")),
    Sketcher.Constraint("DistanceX", 1, 1, 1, 2, Q("1.481379 mm")),
    Sketcher.Constraint("DistanceX", -1, 1, 0, 2, Q("10.899495 mm")),
])
sketch18.setExpression("Constraints[8]", "Params.sketch18_height")
pad4 = body.newObject("PartDesign::Pad", "Pad003")
pad4.Profile = sketch18
pad4.Type = "UpToFirst"
pad4.Reversed = True

# Sketch on XZ plane
sketch19 = body.newObject("Sketcher::SketchObject", "Sketch018")
sketch19.AttachmentSupport = (doc.getObject("XZ_Plane"), [""])
sketch19.MapMode = "FlatFace"
sketch19.AttachmentOffset = App.Placement(App.Vector(0, 0, -4.25), App.Rotation())
sketch19.addGeometry([
    Part.LineSegment(App.Vector(22.237659, -3.330782, 0), App.Vector(10.899495, -3.330782, 0)),
    Part.LineSegment(App.Vector(10.899495, -3.330782, 0), App.Vector(10.899495, -2.730782, 0)),
    Part.LineSegment(App.Vector(10.899495, -2.730782, 0), App.Vector(22.440053, -2.730782, 0)),
    Part.LineSegment(App.Vector(22.440053, -2.730782, 0), App.Vector(22.237659, -3.330782, 0)),
], False)
sketch19.addConstraint([
    Sketcher.Constraint("Coincident", 0, 2, 1, 1),
    Sketcher.Constraint("Coincident", 1, 2, 2, 1),
    Sketcher.Constraint("Coincident", 2, 2, 3, 1),
    Sketcher.Constraint("Coincident", 3, 2, 0, 1),
    Sketcher.Constraint("Horizontal", 0),
    Sketcher.Constraint("Vertical", 1),
    Sketcher.Constraint("Horizontal", 2),
    Sketcher.Constraint("DistanceY", 1, 1, 1, 2, Q("0.6 mm")),
    Sketcher.Constraint("DistanceX", 2, 1, 2, 2, Q("11.540558 mm")),
    Sketcher.Constraint("DistanceX", 0, 2, 0, 1, Q("11.338164 mm")),
    Sketcher.Constraint("DistanceY", 0, 2, -1, 1, Q("3.330782 mm")),
    Sketcher.Constraint("DistanceX", -1, 1, 3, 2, Q("22.237659 mm")),
])
sketch19.setExpression("Constraints[7]", "Params.sketch19_height")
pad5 = body.newObject("PartDesign::Pad", "Pad004")
pad5.Profile = sketch19
pad5.Type = "UpToFirst"
pad5.Reversed = True

# Sketch on XZ plane
sketch20 = body.newObject("Sketcher::SketchObject", "Sketch019")
sketch20.AttachmentSupport = (doc.getObject("XZ_Plane"), [""])
sketch20.MapMode = "FlatFace"
sketch20.AttachmentOffset = App.Placement(App.Vector(0, 0, -4.25), App.Rotation())
sketch20.addGeometry([
    Part.LineSegment(App.Vector(22.477955, 2.646976, 0), App.Vector(10.899495, 2.646976, 0)),
    Part.LineSegment(App.Vector(10.899495, 2.646976, 0), App.Vector(10.899495, 3.246976, 0)),
    Part.LineSegment(App.Vector(10.899495, 3.246976, 0), App.Vector(22.217055, 3.246976, 0)),
    Part.LineSegment(App.Vector(22.217055, 3.246976, 0), App.Vector(22.477955, 2.646976, 0)),
], False)
sketch20.addConstraint([
    Sketcher.Constraint("Coincident", 0, 2, 1, 1),
    Sketcher.Constraint("Coincident", 1, 2, 2, 1),
    Sketcher.Constraint("Coincident", 2, 2, 3, 1),
    Sketcher.Constraint("Coincident", 3, 2, 0, 1),
    Sketcher.Constraint("Horizontal", 0),
    Sketcher.Constraint("Vertical", 1),
    Sketcher.Constraint("Horizontal", 2),
    Sketcher.Constraint("DistanceY", 1, 1, 1, 2, Q("0.6 mm")),
    Sketcher.Constraint("DistanceX", 0, 2, 0, 1, Q("11.57846 mm")),
    Sketcher.Constraint("DistanceX", 2, 1, 2, 2, Q("11.31756 mm")),
    Sketcher.Constraint("DistanceX", -1, 1, 0, 2, Q("10.899495 mm")),
    Sketcher.Constraint("DistanceY", -1, 1, 0, 2, Q("2.646976 mm")),
])
sketch20.setExpression("Constraints[7]", "Params.sketch20_height")
pad6 = body.newObject("PartDesign::Pad", "Pad005")
pad6.Profile = sketch20
pad6.Type = "UpToFirst"
pad6.Reversed = True

# Sketch on XZ plane
sketch21 = body.newObject("Sketcher::SketchObject", "Sketch020")
sketch21.AttachmentSupport = (doc.getObject("XZ_Plane"), [""])
sketch21.MapMode = "FlatFace"
sketch21.AttachmentOffset = App.Placement(App.Vector(0, 0, -4.25), App.Rotation())
sketch21.addGeometry([
    Part.LineSegment(App.Vector(20.100469, 6, 0), App.Vector(10.899495, 6, 0)),
    Part.LineSegment(App.Vector(10.899495, 6, 0), App.Vector(10.899495, 6.6, 0)),
    Part.LineSegment(App.Vector(10.899495, 6.6, 0), App.Vector(19.187051, 6.6, 0)),
    Part.LineSegment(App.Vector(19.187051, 6.6, 0), App.Vector(20.100469, 6, 0)),
], False)
sketch21.addConstraint([
    Sketcher.Constraint("Coincident", 0, 2, 1, 1),
    Sketcher.Constraint("Coincident", 1, 2, 2, 1),
    Sketcher.Constraint("Coincident", 2, 2, 3, 1),
    Sketcher.Constraint("Coincident", 3, 2, 0, 1),
    Sketcher.Constraint("Horizontal", 0),
    Sketcher.Constraint("Vertical", 1),
    Sketcher.Constraint("Horizontal", 2),
    Sketcher.Constraint("DistanceY", 1, 1, 1, 2, Q("0.6 mm")),
    Sketcher.Constraint("DistanceY", -1, 1, 0, 2, Q("6 mm")),
    Sketcher.Constraint("DistanceX", 0, 2, 0, 1, Q("9.200975 mm")),
    Sketcher.Constraint("DistanceX", 2, 1, 2, 2, Q("8.287556 mm")),
    Sketcher.Constraint("DistanceX", -1, 1, 2, 2, Q("19.187051 mm")),
])
sketch21.setExpression("Constraints[7]", "Params.sketch21_height")
pad7 = body.newObject("PartDesign::Pad", "Pad006")
pad7.Profile = sketch21
pad7.Type = "UpToFirst"
pad7.Reversed = True

# Sketch on XZ plane
sketch22 = body.newObject("Sketcher::SketchObject", "Sketch021")
sketch22.AttachmentSupport = (doc.getObject("XZ_Plane"), [""])
sketch22.MapMode = "FlatFace"
sketch22.AttachmentOffset = App.Placement(App.Vector(0, 0, -4.25), App.Rotation())
sketch22.addGeometry([
    Part.LineSegment(App.Vector(17.646799, -0.35, 0), App.Vector(17.646799, 0.25, 0)),
    Part.LineSegment(App.Vector(17.646799, 0.25, 0), App.Vector(22.933946, 0.25, 0)),
    Part.LineSegment(App.Vector(22.933946, 0.25, 0), App.Vector(22.933946, -0.35, 0)),
    Part.LineSegment(App.Vector(22.933946, -0.35, 0), App.Vector(17.646799, -0.35, 0)),
], False)
sketch22.addConstraint([
    Sketcher.Constraint("Coincident", 0, 2, 1, 1),
    Sketcher.Constraint("Coincident", 1, 2, 2, 1),
    Sketcher.Constraint("Coincident", 2, 2, 3, 1),
    Sketcher.Constraint("Coincident", 3, 2, 0, 1),
    Sketcher.Constraint("Vertical", 0),
    Sketcher.Constraint("Horizontal", 1),
    Sketcher.Constraint("Vertical", 2),
    Sketcher.Constraint("Horizontal", 3),
    Sketcher.Constraint("DistanceY", 0, 1, 0, 2, Q("0.6 mm")),
    Sketcher.Constraint("DistanceY", -1, 1, 0, 2, Q("0.25 mm")),
    Sketcher.Constraint("DistanceX", -1, 1, 0, 2, Q("17.646799 mm")),
    Sketcher.Constraint("DistanceX", 1, 1, 1, 2, Q("5.287147 mm")),
])
sketch22.setExpression("Constraints[8]", "Params.sketch22_height")
pad8 = body.newObject("PartDesign::Pad", "Pad007")
pad8.Profile = sketch22
pad8.Type = "UpToFirst"
pad8.Reversed = True

# Sketch on XZ plane
sketch23 = body.newObject("Sketcher::SketchObject", "Sketch022")
sketch23.AttachmentSupport = (doc.getObject("XZ_Plane"), [""])
sketch23.MapMode = "FlatFace"
sketch23.AttachmentOffset = App.Placement(App.Vector(0, 0, -4.25), App.Rotation())
sketch23.addGeometry([
    Part.LineSegment(App.Vector(10.899495, -6.25, 0), App.Vector(10.899495, -5.65, 0)),
    Part.LineSegment(App.Vector(10.899495, -5.65, 0), App.Vector(20.530479, -5.65, 0)),
    Part.LineSegment(App.Vector(20.530479, -5.65, 0), App.Vector(19.895587, -6.25, 0)),
    Part.LineSegment(App.Vector(19.895587, -6.25, 0), App.Vector(10.899495, -6.25, 0)),
], False)
sketch23.addConstraint([
    Sketcher.Constraint("Coincident", 0, 2, 1, 1),
    Sketcher.Constraint("Coincident", 1, 2, 2, 1),
    Sketcher.Constraint("Coincident", 2, 2, 3, 1),
    Sketcher.Constraint("Coincident", 3, 2, 0, 1),
    Sketcher.Constraint("Vertical", 0),
    Sketcher.Constraint("Horizontal", 1),
    Sketcher.Constraint("Horizontal", 3),
    Sketcher.Constraint("DistanceY", 0, 1, 0, 2, Q("0.6 mm")),
    Sketcher.Constraint("DistanceY", 0, 2, -1, 1, Q("5.65 mm")),
    Sketcher.Constraint("DistanceX", 3, 2, 3, 1, Q("8.996092 mm")),
    Sketcher.Constraint("Distance", 2, Q("0.873549 mm")),
    Sketcher.Constraint("DistanceX", -1, 1, 1, 2, Q("20.530479 mm")),
])
sketch23.setExpression("Constraints[7]", "Params.sketch23_height")
pad9 = body.newObject("PartDesign::Pad", "Pad008")
pad9.Profile = sketch23
pad9.Type = "UpToFirst"
pad9.Reversed = True

# Sketch on XZ plane
sketch24 = body.newObject("Sketcher::SketchObject", "Sketch023")
sketch24.AttachmentSupport = (doc.getObject("XZ_Plane"), [""])
sketch24.MapMode = "FlatFace"
sketch24.AttachmentOffset = App.Placement(App.Vector(0, 0, -4.25), App.Rotation())
sketch24.addGeometry([
    Part.LineSegment(App.Vector(8.899495, 3.246976, 0), App.Vector(8.899495, 2.646976, 0)),
    Part.LineSegment(App.Vector(8.899495, 2.646976, 0), App.Vector(6.045951, 2.646976, 0)),
    Part.LineSegment(App.Vector(6.045951, 2.646976, 0), App.Vector(5.800562, 3.246976, 0)),
    Part.LineSegment(App.Vector(5.800562, 3.246976, 0), App.Vector(8.899495, 3.246976, 0)),
], False)
sketch24.addConstraint([
    Sketcher.Constraint("Coincident", 0, 2, 1, 1),
    Sketcher.Constraint("Coincident", 1, 2, 2, 1),
    Sketcher.Constraint("Coincident", 2, 2, 3, 1),
    Sketcher.Constraint("Coincident", 3, 2, 0, 1),
    Sketcher.Constraint("Vertical", 0),
    Sketcher.Constraint("Horizontal", 1),
    Sketcher.Constraint("Horizontal", 3),
    Sketcher.Constraint("DistanceY", 0, 2, 0, 1, Q("0.6 mm")),
    Sketcher.Constraint("Distance", 2, Q("0.64824 mm")),
    Sketcher.Constraint("DistanceX", 1, 2, 1, 1, Q("2.853544 mm")),
    Sketcher.Constraint("DistanceX", -1, 1, 1, 2, Q("6.045951 mm")),
    Sketcher.Constraint("DistanceY", -1, 1, 0, 2, Q("2.646976 mm")),
])
sketch24.setExpression("Constraints[7]", "Params.sketch24_height")
pad10 = body.newObject("PartDesign::Pad", "Pad009")
pad10.Profile = sketch24
pad10.Type = "UpToFirst"
pad10.Reversed = True

# Sketch on XZ plane
sketch25 = body.newObject("Sketcher::SketchObject", "Sketch024")
sketch25.AttachmentSupport = (doc.getObject("XZ_Plane"), [""])
sketch25.MapMode = "FlatFace"
sketch25.AttachmentOffset = App.Placement(App.Vector(0, 0, -4.25), App.Rotation())
sketch25.addGeometry([
    Part.LineSegment(App.Vector(8.899495, -3.330782, 0), App.Vector(5.759277, -3.330782, 0)),
    Part.LineSegment(App.Vector(5.759277, -3.330782, 0), App.Vector(6.078412, -2.730782, 0)),
    Part.LineSegment(App.Vector(6.078412, -2.730782, 0), App.Vector(8.899495, -2.730782, 0)),
    Part.LineSegment(App.Vector(8.899495, -2.730782, 0), App.Vector(8.899495, -3.330782, 0)),
], False)
sketch25.addConstraint([
    Sketcher.Constraint("Coincident", 0, 2, 1, 1),
    Sketcher.Constraint("Coincident", 1, 2, 2, 1),
    Sketcher.Constraint("Coincident", 2, 2, 3, 1),
    Sketcher.Constraint("Coincident", 3, 2, 0, 1),
    Sketcher.Constraint("Horizontal", 0),
    Sketcher.Constraint("Horizontal", 2),
    Sketcher.Constraint("Vertical", 3),
    Sketcher.Constraint("DistanceY", 3, 2, 3, 1, Q("0.6 mm")),
    Sketcher.Constraint("DistanceX", 0, 2, 0, 1, Q("3.140218 mm")),
    Sketcher.Constraint("DistanceX", 2, 1, 2, 2, Q("2.821083 mm")),
    Sketcher.Constraint("DistanceY", 0, 2, -1, 1, Q("3.330782 mm")),
    Sketcher.Constraint("DistanceX", -1, 1, 0, 2, Q("5.759277 mm")),
])
sketch25.setExpression("Constraints[7]", "Params.sketch25_height")
pad11 = body.newObject("PartDesign::Pad", "Pad010")
pad11.Profile = sketch25
pad11.Type = "UpToFirst"
pad11.Reversed = True

# Sketch on XZ plane
sketch26 = body.newObject("Sketcher::SketchObject", "Sketch025")
sketch26.AttachmentSupport = (doc.getObject("XZ_Plane"), [""])
sketch26.MapMode = "FlatFace"
sketch26.AttachmentOffset = App.Placement(App.Vector(0, 0, -4.25), App.Rotation())
sketch26.addGeometry([
    Part.LineSegment(App.Vector(6.622698, -0.35, 0), App.Vector(6.622698, 0.25, 0)),
    Part.LineSegment(App.Vector(6.622698, 0.25, 0), App.Vector(8.899495, 0.25, 0)),
    Part.LineSegment(App.Vector(8.899495, 0.25, 0), App.Vector(8.899495, -0.35, 0)),
    Part.LineSegment(App.Vector(8.899495, -0.35, 0), App.Vector(6.622698, -0.35, 0)),
], False)
sketch26.addConstraint([
    Sketcher.Constraint("Coincident", 0, 2, 1, 1),
    Sketcher.Constraint("Coincident", 1, 2, 2, 1),
    Sketcher.Constraint("Coincident", 2, 2, 3, 1),
    Sketcher.Constraint("Coincident", 3, 2, 0, 1),
    Sketcher.Constraint("Vertical", 0),
    Sketcher.Constraint("Horizontal", 1),
    Sketcher.Constraint("Vertical", 2),
    Sketcher.Constraint("Horizontal", 3),
    Sketcher.Constraint("DistanceY", 0, 1, 0, 2, Q("0.6 mm")),
    Sketcher.Constraint("DistanceY", -1, 1, 0, 2, Q("0.25 mm")),
    Sketcher.Constraint("DistanceX", 1, 1, 1, 2, Q("2.276797 mm")),
    Sketcher.Constraint("DistanceX", -1, 1, 0, 2, Q("6.622698 mm")),
])
sketch26.setExpression("Constraints[8]", "Params.sketch26_height")
pad12 = body.newObject("PartDesign::Pad", "Pad011")
pad12.Profile = sketch26
pad12.Type = "UpToFirst"
pad12.Reversed = True

doc.recompute()
